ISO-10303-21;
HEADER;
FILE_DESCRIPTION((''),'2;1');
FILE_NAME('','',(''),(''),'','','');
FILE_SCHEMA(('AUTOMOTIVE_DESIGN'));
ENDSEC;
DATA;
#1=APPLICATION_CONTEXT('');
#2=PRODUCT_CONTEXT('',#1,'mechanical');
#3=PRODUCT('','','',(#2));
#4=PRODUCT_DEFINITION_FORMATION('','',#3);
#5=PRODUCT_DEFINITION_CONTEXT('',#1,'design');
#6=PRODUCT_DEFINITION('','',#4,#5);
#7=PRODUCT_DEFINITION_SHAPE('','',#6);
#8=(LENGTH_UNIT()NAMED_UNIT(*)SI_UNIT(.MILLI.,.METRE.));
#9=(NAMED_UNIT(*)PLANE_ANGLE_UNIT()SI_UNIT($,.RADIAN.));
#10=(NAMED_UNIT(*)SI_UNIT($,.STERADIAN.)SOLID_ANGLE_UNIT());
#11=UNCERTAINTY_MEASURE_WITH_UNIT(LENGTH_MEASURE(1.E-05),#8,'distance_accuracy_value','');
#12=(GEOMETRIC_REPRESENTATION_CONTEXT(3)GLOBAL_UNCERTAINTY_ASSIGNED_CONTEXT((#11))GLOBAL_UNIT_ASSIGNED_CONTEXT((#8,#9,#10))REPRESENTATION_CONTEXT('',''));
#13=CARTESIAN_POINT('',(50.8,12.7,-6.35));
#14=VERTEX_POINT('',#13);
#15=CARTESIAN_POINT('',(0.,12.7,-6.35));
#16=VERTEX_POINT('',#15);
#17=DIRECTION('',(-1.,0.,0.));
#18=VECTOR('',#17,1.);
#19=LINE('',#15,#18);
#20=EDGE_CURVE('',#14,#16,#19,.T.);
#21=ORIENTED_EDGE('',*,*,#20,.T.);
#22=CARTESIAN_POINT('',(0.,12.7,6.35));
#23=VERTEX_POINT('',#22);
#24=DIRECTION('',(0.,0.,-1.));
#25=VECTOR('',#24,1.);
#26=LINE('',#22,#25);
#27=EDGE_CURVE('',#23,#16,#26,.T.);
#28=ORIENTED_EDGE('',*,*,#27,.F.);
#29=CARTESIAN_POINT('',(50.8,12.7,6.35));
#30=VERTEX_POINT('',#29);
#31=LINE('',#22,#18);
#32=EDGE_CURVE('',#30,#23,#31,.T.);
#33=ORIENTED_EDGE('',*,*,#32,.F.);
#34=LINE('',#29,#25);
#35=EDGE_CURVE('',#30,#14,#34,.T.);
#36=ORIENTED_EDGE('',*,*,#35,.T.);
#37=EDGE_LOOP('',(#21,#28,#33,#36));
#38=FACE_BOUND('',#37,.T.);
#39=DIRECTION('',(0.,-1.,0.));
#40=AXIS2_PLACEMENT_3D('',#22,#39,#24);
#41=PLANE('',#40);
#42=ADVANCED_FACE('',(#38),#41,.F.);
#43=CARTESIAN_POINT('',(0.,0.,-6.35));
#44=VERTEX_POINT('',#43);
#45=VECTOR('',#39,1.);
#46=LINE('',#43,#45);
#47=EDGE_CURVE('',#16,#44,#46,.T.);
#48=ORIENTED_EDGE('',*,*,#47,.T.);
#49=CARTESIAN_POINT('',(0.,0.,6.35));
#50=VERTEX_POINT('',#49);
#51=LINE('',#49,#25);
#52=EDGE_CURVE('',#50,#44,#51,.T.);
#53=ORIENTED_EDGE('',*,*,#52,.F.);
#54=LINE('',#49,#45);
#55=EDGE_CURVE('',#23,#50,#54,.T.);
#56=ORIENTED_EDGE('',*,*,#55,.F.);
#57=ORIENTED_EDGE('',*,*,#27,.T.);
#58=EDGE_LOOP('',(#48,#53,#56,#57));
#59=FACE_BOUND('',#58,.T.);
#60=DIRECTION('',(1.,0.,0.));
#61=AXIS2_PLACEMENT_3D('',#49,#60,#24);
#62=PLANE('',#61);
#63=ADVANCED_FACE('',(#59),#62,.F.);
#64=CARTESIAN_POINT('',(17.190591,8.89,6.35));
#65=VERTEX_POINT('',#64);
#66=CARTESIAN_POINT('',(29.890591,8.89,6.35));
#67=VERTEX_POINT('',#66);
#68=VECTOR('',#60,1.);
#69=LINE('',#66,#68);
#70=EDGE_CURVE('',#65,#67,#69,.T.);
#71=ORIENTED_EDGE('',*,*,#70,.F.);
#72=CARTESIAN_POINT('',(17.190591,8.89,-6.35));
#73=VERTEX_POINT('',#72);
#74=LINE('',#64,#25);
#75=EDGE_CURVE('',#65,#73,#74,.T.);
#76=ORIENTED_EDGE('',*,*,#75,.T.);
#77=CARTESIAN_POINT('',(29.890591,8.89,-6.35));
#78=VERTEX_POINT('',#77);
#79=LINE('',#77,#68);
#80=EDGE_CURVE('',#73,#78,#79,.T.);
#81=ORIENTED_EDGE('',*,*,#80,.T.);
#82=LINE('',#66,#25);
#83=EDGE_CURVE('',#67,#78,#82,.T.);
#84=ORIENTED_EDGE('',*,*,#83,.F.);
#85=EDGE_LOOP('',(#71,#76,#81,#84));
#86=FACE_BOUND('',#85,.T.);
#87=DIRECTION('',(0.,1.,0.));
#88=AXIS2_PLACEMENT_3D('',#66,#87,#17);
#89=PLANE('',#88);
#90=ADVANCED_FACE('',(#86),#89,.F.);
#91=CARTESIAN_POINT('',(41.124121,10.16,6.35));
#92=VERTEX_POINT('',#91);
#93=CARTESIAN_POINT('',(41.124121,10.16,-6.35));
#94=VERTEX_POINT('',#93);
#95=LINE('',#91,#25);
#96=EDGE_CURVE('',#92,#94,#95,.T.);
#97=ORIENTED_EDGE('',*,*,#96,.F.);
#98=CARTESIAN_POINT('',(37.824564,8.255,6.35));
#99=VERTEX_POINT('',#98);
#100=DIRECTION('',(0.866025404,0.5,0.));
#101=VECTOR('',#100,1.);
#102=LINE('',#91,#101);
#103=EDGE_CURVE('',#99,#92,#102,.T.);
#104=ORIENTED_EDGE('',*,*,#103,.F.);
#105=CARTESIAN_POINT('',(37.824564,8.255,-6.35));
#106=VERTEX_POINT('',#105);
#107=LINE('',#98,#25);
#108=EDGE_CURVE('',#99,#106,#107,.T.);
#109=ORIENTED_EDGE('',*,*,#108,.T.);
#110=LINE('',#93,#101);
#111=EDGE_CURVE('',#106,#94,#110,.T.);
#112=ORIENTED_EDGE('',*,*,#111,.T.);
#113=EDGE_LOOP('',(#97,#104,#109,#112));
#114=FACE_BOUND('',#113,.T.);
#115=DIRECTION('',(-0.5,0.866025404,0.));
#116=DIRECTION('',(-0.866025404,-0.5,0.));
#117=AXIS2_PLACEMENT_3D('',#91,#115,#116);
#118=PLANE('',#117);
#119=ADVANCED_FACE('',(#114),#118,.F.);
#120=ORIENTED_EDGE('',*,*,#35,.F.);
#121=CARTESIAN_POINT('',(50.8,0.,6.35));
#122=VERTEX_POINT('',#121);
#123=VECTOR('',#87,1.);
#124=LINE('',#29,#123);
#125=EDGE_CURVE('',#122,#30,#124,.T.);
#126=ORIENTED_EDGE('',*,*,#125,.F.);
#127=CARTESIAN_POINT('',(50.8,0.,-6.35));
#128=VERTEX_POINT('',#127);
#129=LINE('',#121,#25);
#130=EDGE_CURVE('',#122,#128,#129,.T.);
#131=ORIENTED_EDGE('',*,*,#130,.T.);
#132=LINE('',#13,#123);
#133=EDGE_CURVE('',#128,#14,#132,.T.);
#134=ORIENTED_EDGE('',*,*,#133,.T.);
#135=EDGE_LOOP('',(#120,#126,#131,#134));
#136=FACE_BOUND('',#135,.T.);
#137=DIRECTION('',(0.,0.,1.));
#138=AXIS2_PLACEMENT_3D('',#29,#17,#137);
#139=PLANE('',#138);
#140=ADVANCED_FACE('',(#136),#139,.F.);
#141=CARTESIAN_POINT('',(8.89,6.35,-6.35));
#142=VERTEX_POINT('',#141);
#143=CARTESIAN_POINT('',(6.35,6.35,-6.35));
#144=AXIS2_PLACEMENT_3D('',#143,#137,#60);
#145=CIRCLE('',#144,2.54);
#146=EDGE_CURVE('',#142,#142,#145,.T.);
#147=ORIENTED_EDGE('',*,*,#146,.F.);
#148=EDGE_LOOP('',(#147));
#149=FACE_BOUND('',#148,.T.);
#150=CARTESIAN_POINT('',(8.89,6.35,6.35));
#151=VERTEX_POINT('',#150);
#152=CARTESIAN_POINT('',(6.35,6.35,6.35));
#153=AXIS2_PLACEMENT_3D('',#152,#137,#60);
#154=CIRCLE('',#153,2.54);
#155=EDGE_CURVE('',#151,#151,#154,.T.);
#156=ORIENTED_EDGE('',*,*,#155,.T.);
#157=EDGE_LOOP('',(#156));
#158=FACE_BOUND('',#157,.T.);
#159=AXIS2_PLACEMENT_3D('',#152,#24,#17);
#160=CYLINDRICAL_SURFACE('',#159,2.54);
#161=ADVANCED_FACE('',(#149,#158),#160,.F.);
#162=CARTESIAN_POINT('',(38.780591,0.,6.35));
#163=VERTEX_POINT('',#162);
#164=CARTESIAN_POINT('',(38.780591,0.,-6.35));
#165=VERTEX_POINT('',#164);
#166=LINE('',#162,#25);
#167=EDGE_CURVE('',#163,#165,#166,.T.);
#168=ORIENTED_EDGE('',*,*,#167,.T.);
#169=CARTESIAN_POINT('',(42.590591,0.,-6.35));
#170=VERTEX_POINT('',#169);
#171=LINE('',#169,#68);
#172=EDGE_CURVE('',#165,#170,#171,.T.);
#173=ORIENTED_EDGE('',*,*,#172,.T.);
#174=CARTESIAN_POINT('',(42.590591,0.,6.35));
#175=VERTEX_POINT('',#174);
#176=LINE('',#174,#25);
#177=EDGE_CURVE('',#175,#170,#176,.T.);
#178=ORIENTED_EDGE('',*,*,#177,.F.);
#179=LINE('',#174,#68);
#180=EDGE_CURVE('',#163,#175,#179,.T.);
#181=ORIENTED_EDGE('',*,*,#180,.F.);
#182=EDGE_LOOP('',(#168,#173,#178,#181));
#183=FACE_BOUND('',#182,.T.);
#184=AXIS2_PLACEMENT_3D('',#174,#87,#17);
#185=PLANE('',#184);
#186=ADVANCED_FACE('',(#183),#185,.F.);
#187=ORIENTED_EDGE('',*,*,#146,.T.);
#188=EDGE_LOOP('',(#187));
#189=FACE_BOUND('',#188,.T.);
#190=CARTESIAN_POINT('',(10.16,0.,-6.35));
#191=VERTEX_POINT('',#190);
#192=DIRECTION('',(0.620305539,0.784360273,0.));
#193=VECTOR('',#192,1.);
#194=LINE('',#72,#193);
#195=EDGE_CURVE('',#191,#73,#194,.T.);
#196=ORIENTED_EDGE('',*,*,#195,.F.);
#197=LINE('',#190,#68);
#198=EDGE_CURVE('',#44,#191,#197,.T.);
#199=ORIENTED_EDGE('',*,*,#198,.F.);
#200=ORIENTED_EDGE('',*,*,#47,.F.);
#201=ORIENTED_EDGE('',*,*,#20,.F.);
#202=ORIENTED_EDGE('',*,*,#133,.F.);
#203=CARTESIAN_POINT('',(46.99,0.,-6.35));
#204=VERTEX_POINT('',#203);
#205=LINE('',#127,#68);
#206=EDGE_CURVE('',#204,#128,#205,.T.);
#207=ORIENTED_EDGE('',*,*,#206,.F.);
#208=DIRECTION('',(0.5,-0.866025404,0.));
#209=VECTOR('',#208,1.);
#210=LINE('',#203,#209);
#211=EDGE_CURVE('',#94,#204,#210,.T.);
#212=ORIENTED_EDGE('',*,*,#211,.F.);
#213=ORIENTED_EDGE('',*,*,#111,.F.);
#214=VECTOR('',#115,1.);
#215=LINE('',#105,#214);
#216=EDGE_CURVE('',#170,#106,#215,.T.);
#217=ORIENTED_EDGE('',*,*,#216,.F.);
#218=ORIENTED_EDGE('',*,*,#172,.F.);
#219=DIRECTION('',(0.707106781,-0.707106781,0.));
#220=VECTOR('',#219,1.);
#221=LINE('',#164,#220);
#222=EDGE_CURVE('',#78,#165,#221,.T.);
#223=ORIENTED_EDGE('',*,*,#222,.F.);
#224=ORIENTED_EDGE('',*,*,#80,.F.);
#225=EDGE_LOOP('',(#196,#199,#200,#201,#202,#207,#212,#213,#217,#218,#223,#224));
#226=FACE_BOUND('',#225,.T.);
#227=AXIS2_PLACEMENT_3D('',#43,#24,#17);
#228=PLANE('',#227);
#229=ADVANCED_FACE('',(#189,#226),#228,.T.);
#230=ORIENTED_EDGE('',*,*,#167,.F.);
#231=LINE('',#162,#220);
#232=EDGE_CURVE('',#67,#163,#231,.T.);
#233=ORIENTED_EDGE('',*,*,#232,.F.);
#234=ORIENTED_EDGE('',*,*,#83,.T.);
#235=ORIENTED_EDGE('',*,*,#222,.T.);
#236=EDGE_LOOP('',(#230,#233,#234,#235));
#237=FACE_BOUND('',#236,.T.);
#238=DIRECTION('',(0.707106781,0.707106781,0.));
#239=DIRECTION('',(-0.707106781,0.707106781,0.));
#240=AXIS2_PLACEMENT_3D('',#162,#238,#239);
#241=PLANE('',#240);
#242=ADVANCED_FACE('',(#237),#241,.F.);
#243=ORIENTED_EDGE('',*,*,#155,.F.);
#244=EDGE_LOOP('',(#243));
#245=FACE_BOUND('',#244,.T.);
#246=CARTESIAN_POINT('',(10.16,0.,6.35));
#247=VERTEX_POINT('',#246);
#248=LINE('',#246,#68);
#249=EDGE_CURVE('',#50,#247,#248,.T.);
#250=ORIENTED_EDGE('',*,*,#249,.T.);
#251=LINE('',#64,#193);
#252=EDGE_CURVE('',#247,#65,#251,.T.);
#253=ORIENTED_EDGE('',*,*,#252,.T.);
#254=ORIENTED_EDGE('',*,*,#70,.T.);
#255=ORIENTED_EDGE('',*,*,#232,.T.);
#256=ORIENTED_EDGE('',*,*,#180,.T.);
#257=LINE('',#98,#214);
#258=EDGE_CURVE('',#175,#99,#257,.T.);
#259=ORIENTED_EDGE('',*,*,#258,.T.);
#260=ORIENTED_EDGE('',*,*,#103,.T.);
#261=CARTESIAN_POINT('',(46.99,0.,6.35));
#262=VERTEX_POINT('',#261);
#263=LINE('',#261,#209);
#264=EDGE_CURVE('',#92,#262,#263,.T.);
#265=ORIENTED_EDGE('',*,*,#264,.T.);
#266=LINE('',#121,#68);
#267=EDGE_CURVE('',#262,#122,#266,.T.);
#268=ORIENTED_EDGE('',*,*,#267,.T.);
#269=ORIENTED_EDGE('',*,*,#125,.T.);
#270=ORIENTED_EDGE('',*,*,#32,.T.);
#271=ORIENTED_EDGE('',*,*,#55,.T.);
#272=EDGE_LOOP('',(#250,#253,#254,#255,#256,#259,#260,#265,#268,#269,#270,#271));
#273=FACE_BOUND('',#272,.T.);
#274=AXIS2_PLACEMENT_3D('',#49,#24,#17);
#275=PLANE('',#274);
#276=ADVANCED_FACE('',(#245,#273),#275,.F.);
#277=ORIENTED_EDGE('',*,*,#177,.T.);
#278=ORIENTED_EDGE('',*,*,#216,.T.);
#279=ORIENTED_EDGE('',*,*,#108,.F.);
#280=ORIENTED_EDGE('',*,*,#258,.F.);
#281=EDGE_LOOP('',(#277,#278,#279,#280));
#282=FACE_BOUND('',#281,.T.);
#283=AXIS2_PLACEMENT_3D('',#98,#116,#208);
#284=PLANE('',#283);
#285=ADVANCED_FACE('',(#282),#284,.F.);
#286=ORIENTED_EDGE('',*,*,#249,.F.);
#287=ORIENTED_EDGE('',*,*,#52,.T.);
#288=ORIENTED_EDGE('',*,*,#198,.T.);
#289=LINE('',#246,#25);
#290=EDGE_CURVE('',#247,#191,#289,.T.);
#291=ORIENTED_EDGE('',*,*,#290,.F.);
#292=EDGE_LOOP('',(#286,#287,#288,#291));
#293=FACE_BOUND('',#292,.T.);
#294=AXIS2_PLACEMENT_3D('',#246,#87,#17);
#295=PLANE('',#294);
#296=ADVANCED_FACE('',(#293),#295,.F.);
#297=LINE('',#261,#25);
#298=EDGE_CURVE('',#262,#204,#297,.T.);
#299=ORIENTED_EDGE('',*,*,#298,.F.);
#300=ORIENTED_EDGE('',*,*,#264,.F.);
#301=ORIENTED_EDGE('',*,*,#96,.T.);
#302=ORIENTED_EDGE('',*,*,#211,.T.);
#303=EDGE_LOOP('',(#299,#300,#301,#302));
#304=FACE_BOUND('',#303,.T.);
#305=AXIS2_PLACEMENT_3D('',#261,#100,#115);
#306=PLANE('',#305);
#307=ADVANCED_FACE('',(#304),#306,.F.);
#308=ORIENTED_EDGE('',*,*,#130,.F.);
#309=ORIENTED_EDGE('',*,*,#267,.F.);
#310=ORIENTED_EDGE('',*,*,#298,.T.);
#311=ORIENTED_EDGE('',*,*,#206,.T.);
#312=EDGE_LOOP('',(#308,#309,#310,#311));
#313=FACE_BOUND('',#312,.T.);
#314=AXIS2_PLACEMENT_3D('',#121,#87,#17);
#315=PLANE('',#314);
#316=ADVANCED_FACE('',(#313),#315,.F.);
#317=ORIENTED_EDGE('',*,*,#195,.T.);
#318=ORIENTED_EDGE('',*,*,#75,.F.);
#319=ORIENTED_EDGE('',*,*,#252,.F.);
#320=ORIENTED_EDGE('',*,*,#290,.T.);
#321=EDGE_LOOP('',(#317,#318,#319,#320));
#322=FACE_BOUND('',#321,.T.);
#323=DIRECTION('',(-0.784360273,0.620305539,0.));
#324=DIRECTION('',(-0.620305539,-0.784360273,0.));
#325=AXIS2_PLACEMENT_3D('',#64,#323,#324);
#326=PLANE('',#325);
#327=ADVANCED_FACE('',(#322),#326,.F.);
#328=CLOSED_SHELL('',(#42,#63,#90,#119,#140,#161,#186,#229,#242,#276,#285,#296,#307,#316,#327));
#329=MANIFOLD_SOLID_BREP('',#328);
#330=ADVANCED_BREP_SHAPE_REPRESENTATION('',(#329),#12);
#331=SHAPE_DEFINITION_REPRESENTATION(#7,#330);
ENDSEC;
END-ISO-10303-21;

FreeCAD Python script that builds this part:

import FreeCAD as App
import Part
import Sketcher

V = App.Vector
Q = App.Units.Quantity


def add_polygon(sketch, points):
    """Adds a closed chain of lines whose ends are joined by coincident constraints."""
    first, n = sketch.GeometryCount, len(points)
    for a, b in zip(points, points[1:] + points[:1]):
        sketch.addGeometry(Part.LineSegment(App.Vector(*a, 0), App.Vector(*b, 0)), False)
    for i in range(n):
        sketch.addConstraint(Sketcher.Constraint("Coincident", first + i, 2, first + (i + 1) % n, 1))

doc = App.newDocument("Part")
body = doc.addObject("PartDesign::Body", "Body")

sketch1 = body.newObject("Sketcher::SketchObject", "Sketch")
sketch1.AttachmentSupport = (doc.getObject("XY_Plane"), [""])
sketch1.MapMode = "FlatFace"
add_polygon(sketch1, [(0, 12.7), (0, 0), (10.16, 0), (17.190591, 8.89), (29.890591, 8.89), (38.780591, 0), (42.590591, 0), (37.824564, 8.255), (41.124121, 10.16), (46.99, 0), (50.8, 0), (50.8, 12.7)])
sketch1.addGeometry(Part.Circle(V(6.35, 6.35, 0), V(0, 0, 1), 2.54), False)
sketch1.addConstraint(Sketcher.Constraint("Vertical", 0))
sketch1.addConstraint(Sketcher.Constraint("Horizontal", 1))
sketch1.addConstraint(Sketcher.Constraint("Horizontal", 3))
sketch1.addConstraint(Sketcher.Constraint("Horizontal", 5))
sketch1.addConstraint(Sketcher.Constraint("Horizontal", 9))
sketch1.addConstraint(Sketcher.Constraint("Vertical", 10))
sketch1.addConstraint(Sketcher.Constraint("Horizontal", 11))
sketch1.addConstraint(Sketcher.Constraint("Coincident", 0, 2, -1, 1))
sketch1.addConstraint(Sketcher.Constraint("PointOnObject", 4, 2, -1))
sketch1.addConstraint(Sketcher.Constraint("PointOnObject", 8, 2, -1))
sketch1.addConstraint(Sketcher.Constraint("Perpendicular", 6, 7))
sketch1.addConstraint(Sketcher.Constraint("Perpendicular", 7, 8))
sketch1.addConstraint(Sketcher.Constraint("Equal", 5, 9))
sketch1.addConstraint(Sketcher.Constraint("Equal", 3, 0))
sketch1.addConstraint(Sketcher.Constraint("Diameter", 12, Q("0.2 in")))
sketch1.addConstraint(Sketcher.Constraint("DistanceX", 11, 2, 11, 1, Q("2 in")))
sketch1.addConstraint(Sketcher.Constraint("DistanceX", 1, 1, 1, 2, Q("0.4 in")))
sketch1.addConstraint(Sketcher.Constraint("DistanceX", 3, 1, 3, 2, Q("0.5 in")))
sketch1.addConstraint(Sketcher.Constraint("Angle", 4, Q("-45 deg")))
sketch1.addConstraint(Sketcher.Constraint("Angle", 6, Q("120 deg")))
sketch1.addConstraint(Sketcher.Constraint("DistanceX", 2, 2, 5, 2, Q("1 in")))
sketch1.addConstraint(Sketcher.Constraint("DistanceX", 5, 1, 5, 2, Q("0.15 in")))
sketch1.addConstraint(Sketcher.Constraint("DistanceY", -1, 1, 7, 2, Q("0.4 in")))
sketch1.addConstraint(Sketcher.Constraint("DistanceY", 12, 3, 2, 2, Q("0.1 in")))
sketch1.addConstraint(Sketcher.Constraint("Distance", 7, Q("0.15 in")))
sketch1.addConstraint(Sketcher.Constraint("DistanceX", -1, 1, 12, 3, Q("0.25 in")))
pad1 = body.newObject("PartDesign::Pad", "Pad")
pad1.Profile = sketch1
pad1.Length = Q("0.5 in")
pad1.Midplane = True

doc.recompute()
